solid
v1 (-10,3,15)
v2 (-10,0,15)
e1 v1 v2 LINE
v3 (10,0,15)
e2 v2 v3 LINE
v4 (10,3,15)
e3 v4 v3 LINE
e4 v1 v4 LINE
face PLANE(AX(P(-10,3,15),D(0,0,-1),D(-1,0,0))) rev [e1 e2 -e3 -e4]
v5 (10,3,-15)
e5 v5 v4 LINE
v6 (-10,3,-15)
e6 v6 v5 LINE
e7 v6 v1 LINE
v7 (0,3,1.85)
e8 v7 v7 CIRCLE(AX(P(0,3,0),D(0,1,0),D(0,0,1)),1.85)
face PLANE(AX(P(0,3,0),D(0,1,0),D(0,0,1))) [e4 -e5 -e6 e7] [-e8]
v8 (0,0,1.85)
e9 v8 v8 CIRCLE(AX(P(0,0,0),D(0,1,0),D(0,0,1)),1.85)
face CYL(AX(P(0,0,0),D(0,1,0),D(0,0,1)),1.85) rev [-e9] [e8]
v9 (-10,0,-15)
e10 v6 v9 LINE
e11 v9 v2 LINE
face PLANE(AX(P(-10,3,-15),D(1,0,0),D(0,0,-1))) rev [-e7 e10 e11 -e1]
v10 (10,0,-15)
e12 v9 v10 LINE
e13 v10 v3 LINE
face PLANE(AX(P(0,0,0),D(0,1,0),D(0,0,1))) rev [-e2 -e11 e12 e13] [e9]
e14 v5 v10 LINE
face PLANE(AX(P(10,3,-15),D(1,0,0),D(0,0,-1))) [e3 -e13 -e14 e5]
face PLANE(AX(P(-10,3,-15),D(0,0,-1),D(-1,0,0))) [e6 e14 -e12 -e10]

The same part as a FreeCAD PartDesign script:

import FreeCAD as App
import Part
import Sketcher


def add_polygon(sketch, points):
    """Adds a closed chain of lines whose ends are joined by coincident constraints."""
    first, n = sketch.GeometryCount, len(points)
    for a, b in zip(points, points[1:] + points[:1]):
        sketch.addGeometry(Part.LineSegment(App.Vector(*a, 0), App.Vector(*b, 0)), False)
    for i in range(n):
        sketch.addConstraint(Sketcher.Constraint("Coincident", first + i, 2, first + (i + 1) % n, 1))

doc = App.newDocument("Part")
body = doc.addObject("PartDesign::Body", "Body")

# Sketch on XZ plane
sketch1 = body.newObject("Sketcher::SketchObject", "Sketch")
sketch1.AttachmentSupport = (doc.getObject("XZ_Plane"), [""])
sketch1.MapMode = "FlatFace"
add_polygon(sketch1, [(-10, -15), (-10, 15), (10, 15), (10, -15)])  # lines 0-3
sketch1.addConstraint([
    Sketcher.Constraint("Vertical", 0),
    Sketcher.Constraint("Horizontal", 1),
    Sketcher.Constraint("Vertical", 2),
    Sketcher.Constraint("Horizontal", 3),
    Sketcher.Constraint("Symmetric", 0, 2, 2, 2, -1, 1),
    Sketcher.Constraint("DistanceX", 1, 1, 1, 2, 20.0),
    Sketcher.Constraint("DistanceY", 0, 1, 0, 2, 30.0),
])
pad1 = body.newObject("PartDesign::Pad", "Pad")
pad1.Profile = sketch1
pad1.Length = 3
pad1.Reversed = True

# Sketch on XZ plane
sketch2 = body.newObject("Sketcher::SketchObject", "Sketch001")
sketch2.AttachmentSupport = (doc.getObject("XZ_Plane"), [""])
sketch2.MapMode = "FlatFace"
sketch2.AttachmentOffset = App.Placement(App.Vector(0, 0, -3), App.Rotation())
sketch2.addGeometry(Part.Circle(App.Vector(0, 0, 0), App.Vector(0, 0, 1), 1.9), False)
sketch2.addConstraint([
    Sketcher.Constraint("Coincident", 0, 3, -1, 1),
    Sketcher.Constraint("Diameter", 0, 3.7),
])
pocket1 = body.newObject("PartDesign::Pocket", "Pocket")
pocket1.Profile = sketch2
pocket1.Length = 3
pocket1.Reversed = True

doc.recompute()
